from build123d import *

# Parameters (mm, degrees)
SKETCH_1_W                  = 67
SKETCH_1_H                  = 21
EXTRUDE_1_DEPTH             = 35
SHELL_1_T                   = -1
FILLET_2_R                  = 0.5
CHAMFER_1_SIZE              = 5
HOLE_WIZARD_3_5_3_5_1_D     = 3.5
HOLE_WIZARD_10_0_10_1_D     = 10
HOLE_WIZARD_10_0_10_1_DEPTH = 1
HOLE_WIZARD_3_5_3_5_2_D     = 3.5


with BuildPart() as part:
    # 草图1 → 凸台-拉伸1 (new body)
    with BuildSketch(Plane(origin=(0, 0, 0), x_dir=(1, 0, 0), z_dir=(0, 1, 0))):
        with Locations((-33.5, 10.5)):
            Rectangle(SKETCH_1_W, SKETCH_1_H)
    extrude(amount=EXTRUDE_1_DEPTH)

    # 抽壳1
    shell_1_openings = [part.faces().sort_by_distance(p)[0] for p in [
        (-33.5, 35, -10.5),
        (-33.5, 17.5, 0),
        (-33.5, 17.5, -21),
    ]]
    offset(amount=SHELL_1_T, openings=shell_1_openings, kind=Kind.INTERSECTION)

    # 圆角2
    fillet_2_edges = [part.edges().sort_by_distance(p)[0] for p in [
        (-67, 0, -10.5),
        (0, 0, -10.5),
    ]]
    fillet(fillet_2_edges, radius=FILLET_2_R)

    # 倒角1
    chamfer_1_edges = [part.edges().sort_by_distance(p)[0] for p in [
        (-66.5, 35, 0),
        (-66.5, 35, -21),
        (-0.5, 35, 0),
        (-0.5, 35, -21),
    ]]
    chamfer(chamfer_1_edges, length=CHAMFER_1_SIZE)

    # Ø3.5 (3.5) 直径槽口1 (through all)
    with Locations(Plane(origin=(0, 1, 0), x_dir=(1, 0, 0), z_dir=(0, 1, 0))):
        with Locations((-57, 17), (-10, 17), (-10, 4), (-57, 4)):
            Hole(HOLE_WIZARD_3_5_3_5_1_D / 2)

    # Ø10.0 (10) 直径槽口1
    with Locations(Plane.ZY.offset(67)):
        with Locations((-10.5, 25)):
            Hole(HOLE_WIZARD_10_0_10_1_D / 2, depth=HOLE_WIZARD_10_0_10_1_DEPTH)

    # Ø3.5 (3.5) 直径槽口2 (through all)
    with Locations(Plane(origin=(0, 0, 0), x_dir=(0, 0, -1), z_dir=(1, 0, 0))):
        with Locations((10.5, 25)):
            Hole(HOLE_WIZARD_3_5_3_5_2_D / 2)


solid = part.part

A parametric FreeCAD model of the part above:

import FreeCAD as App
import Part
import Sketcher


def edges_at(feature, points):
    """Names of the edges that pass closest to the given points."""
    edges = feature.Shape.Edges
    near = lambda p: min(range(len(edges)), key=lambda i: edges[i].distToShape(Part.Vertex(*p))[0])
    return sorted({f"Edge{near(p) + 1}" for p in points})


def faces_at(feature, points):
    """Names of the faces that lie closest to the given points."""
    faces = feature.Shape.Faces
    near = lambda p: min(range(len(faces)), key=lambda i: faces[i].distToShape(Part.Vertex(*p))[0])
    return sorted({f"Face{near(p) + 1}" for p in points})

doc = App.newDocument("Part")
body = doc.addObject("PartDesign::Body", "Body")

# Sketch on XZ plane
sketch1 = body.newObject("Sketcher::SketchObject", "Sketch")
sketch1.AttachmentSupport = (doc.getObject("XZ_Plane"), [""])
sketch1.MapMode = "FlatFace"
sketch1.addGeometry([
    Part.LineSegment(App.Vector(-67, -21, 0), App.Vector(-67, 0, 0)),
    Part.LineSegment(App.Vector(-67, 0, 0), App.Vector(0, 0, 0)),
    Part.LineSegment(App.Vector(0, 0, 0), App.Vector(0, -21, 0)),
    Part.LineSegment(App.Vector(0, -21, 0), App.Vector(-67, -21, 0)),
], False)
sketch1.addConstraint([
    Sketcher.Constraint("Coincident", 0, 2, 1, 1),
    Sketcher.Constraint("Coincident", 1, 2, 2, 1),
    Sketcher.Constraint("Coincident", 2, 2, 3, 1),
    Sketcher.Constraint("Coincident", 3, 2, 0, 1),
    Sketcher.Constraint("Vertical", 0),
    Sketcher.Constraint("Horizontal", 1),
    Sketcher.Constraint("Vertical", 2),
    Sketcher.Constraint("Horizontal", 3),
    Sketcher.Constraint("Coincident", 1, 2, -1, 1),
    Sketcher.Constraint("DistanceX", 1, 1, 1, 2, 67.0),
    Sketcher.Constraint("DistanceY", 0, 1, 0, 2, 21.0),
])
pad1 = body.newObject("PartDesign::Pad", "Pad")
pad1.Profile = sketch1
pad1.Length = 35
pad1.Reversed = True
doc.recompute()

thickness = body.newObject("PartDesign::Thickness", "Thickness")
thickness.Base = (pad1, faces_at(pad1, [(-33.5, 35, -10.5), (-33.5, 17.5, 0), (-33.5, 17.5, -21)]))
thickness.Value = 1
thickness.Reversed = True
thickness.Join = "Intersection"
doc.recompute()

fillet = body.newObject("PartDesign::Fillet", "Fillet")
fillet.Base = (thickness, edges_at(thickness, [(-67, 0, -10.5), (0, 0, -10.5)]))
fillet.Radius = 0.5
doc.recompute()

chamfer = body.newObject("PartDesign::Chamfer", "Chamfer")
chamfer.Base = (fillet, edges_at(fillet, [
    (-66.5, 35, 0),
    (-66.5, 35, -21),
    (-0.5, 35, 0),
    (-0.5, 35, -21),
]))
chamfer.Size = 5

# Sketch on XZ plane
sketch2 = body.newObject("Sketcher::SketchObject", "Sketch001")
sketch2.AttachmentSupport = (doc.getObject("XZ_Plane"), [""])
sketch2.MapMode = "FlatFace"
sketch2.AttachmentOffset = App.Placement(App.Vector(0, 0, -1), App.Rotation())
sketch2.addGeometry([
    Part.Circle(App.Vector(-57, -17, 0), App.Vector(0, 0, 1), 1.8),
    Part.Circle(App.Vector(-10, -17, 0), App.Vector(0, 0, 1), 1.8),
    Part.Circle(App.Vector(-10, -4, 0), App.Vector(0, 0, 1), 1.8),
    Part.Circle(App.Vector(-57, -4, 0), App.Vector(0, 0, 1), 1.8),
], False)
sketch2.addConstraint([
    Sketcher.Constraint("Equal", 0, 1),
    Sketcher.Constraint("Equal", 1, 2),
    Sketcher.Constraint("Equal", 2, 3),
    Sketcher.Constraint("Horizontal", 0, 3, 1, 3),
    Sketcher.Constraint("Horizontal", 2, 3, 3, 3),
    Sketcher.Constraint("Vertical", 1, 3, 2, 3),
    Sketcher.Constraint("Vertical", 0, 3, 3, 3),
    Sketcher.Constraint("Diameter", 0, 3.5),
    Sketcher.Constraint("DistanceX", 0, 3, -1, 1, 57.0),
    Sketcher.Constraint("DistanceY", 0, 3, -1, 1, 17.0),
    Sketcher.Constraint("DistanceX", 1, 3, -1, 1, 10.0),
    Sketcher.Constraint("DistanceY", 2, 3, -1, 1, 4.0),
])
doc.recompute()
hole = body.newObject("PartDesign::Hole", "Hole")
hole.Profile = sketch2
hole.ThreadType = "None"
hole.Diameter = 3.5
hole.DepthType = "ThroughAll"
hole.Reversed = True

# Sketch on YZ plane
sketch3 = body.newObject("Sketcher::SketchObject", "Sketch002")
sketch3.AttachmentSupport = (doc.getObject("YZ_Plane"), [""])
sketch3.MapMode = "FlatFace"
sketch3.AttachmentOffset = App.Placement(App.Vector(0, 0, -67), App.Rotation())
sketch3.addGeometry(Part.Circle(App.Vector(25, -10, 0), App.Vector(0, 0, 1), 5), False)
sketch3.addConstraint([
    Sketcher.Constraint("Diameter", 0, 10.0),
    Sketcher.Constraint("DistanceX", -1, 1, 0, 3, 25.0),
    Sketcher.Constraint("DistanceY", 0, 3, -1, 1, 10.5),
])
doc.recompute()
hole2 = body.newObject("PartDesign::Hole", "Hole001")
hole2.Profile = sketch3
hole2.ThreadType = "None"
hole2.Diameter = 10
hole2.DepthType = "Dimension"
hole2.Depth = 1
hole2.DrillPoint = "Flat"
hole2.Reversed = True

# Sketch on YZ plane
sketch4 = body.newObject("Sketcher::SketchObject", "Sketch003")
sketch4.AttachmentSupport = (doc.getObject("YZ_Plane"), [""])
sketch4.MapMode = "FlatFace"
sketch4.addGeometry(Part.Circle(App.Vector(25, -10.5, 0), App.Vector(0, 0, 1), 1.8), False)
sketch4.addConstraint([
    Sketcher.Constraint("Diameter", 0, 3.5),
    Sketcher.Constraint("DistanceX", -1, 1, 0, 3, 25.0),
    Sketcher.Constraint("DistanceY", 0, 3, -1, 1, 10.5),
])
doc.recompute()
hole3 = body.newObject("PartDesign::Hole", "Hole002")
hole3.Profile = sketch4
hole3.ThreadType = "None"
hole3.Diameter = 3.5
hole3.DepthType = "ThroughAll"

doc.recompute()
